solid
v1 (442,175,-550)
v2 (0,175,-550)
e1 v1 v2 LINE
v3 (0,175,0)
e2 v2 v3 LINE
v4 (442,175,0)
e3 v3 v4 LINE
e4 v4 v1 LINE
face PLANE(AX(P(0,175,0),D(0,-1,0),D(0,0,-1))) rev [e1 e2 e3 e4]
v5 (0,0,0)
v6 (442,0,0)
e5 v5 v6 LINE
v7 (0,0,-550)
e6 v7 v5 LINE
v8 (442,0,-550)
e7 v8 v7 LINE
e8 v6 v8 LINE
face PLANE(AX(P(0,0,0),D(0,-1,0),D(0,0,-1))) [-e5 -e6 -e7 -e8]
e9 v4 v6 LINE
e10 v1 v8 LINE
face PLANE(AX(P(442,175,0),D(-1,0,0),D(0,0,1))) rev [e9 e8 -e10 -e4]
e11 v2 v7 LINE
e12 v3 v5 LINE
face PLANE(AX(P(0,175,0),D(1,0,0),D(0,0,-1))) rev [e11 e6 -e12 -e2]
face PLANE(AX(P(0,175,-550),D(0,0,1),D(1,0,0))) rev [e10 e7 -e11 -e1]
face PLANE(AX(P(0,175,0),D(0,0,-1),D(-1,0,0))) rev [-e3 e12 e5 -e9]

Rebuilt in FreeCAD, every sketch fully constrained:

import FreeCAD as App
import Part
import Sketcher

doc = App.newDocument("Part")
body = doc.addObject("PartDesign::Body", "Body")

# Sketch on XZ plane
sketch1 = body.newObject("Sketcher::SketchObject", "Sketch")
sketch1.AttachmentSupport = (doc.getObject("XZ_Plane"), [""])
sketch1.MapMode = "FlatFace"
sketch1.addGeometry([
    Part.LineSegment(App.Vector(0, -550, 0), App.Vector(0, 0, 0)),
    Part.LineSegment(App.Vector(0, 0, 0), App.Vector(442, 0, 0)),
    Part.LineSegment(App.Vector(442, 0, 0), App.Vector(442, -550, 0)),
    Part.LineSegment(App.Vector(442, -550, 0), App.Vector(0, -550, 0)),
], False)
sketch1.addConstraint([
    Sketcher.Constraint("Coincident", 0, 2, 1, 1),
    Sketcher.Constraint("Coincident", 1, 2, 2, 1),
    Sketcher.Constraint("Coincident", 2, 2, 3, 1),
    Sketcher.Constraint("Coincident", 3, 2, 0, 1),
    Sketcher.Constraint("Vertical", 0),
    Sketcher.Constraint("Horizontal", 1),
    Sketcher.Constraint("Vertical", 2),
    Sketcher.Constraint("Horizontal", 3),
    Sketcher.Constraint("Coincident", 0, 2, -1, 1),
    Sketcher.Constraint("DistanceX", 1, 1, 1, 2, 442.0),
    Sketcher.Constraint("DistanceY", 0, 1, 0, 2, 550.0),
])
pad1 = body.newObject("PartDesign::Pad", "Pad")
pad1.Profile = sketch1
pad1.Length = 175
pad1.Reversed = True

doc.recompute()
